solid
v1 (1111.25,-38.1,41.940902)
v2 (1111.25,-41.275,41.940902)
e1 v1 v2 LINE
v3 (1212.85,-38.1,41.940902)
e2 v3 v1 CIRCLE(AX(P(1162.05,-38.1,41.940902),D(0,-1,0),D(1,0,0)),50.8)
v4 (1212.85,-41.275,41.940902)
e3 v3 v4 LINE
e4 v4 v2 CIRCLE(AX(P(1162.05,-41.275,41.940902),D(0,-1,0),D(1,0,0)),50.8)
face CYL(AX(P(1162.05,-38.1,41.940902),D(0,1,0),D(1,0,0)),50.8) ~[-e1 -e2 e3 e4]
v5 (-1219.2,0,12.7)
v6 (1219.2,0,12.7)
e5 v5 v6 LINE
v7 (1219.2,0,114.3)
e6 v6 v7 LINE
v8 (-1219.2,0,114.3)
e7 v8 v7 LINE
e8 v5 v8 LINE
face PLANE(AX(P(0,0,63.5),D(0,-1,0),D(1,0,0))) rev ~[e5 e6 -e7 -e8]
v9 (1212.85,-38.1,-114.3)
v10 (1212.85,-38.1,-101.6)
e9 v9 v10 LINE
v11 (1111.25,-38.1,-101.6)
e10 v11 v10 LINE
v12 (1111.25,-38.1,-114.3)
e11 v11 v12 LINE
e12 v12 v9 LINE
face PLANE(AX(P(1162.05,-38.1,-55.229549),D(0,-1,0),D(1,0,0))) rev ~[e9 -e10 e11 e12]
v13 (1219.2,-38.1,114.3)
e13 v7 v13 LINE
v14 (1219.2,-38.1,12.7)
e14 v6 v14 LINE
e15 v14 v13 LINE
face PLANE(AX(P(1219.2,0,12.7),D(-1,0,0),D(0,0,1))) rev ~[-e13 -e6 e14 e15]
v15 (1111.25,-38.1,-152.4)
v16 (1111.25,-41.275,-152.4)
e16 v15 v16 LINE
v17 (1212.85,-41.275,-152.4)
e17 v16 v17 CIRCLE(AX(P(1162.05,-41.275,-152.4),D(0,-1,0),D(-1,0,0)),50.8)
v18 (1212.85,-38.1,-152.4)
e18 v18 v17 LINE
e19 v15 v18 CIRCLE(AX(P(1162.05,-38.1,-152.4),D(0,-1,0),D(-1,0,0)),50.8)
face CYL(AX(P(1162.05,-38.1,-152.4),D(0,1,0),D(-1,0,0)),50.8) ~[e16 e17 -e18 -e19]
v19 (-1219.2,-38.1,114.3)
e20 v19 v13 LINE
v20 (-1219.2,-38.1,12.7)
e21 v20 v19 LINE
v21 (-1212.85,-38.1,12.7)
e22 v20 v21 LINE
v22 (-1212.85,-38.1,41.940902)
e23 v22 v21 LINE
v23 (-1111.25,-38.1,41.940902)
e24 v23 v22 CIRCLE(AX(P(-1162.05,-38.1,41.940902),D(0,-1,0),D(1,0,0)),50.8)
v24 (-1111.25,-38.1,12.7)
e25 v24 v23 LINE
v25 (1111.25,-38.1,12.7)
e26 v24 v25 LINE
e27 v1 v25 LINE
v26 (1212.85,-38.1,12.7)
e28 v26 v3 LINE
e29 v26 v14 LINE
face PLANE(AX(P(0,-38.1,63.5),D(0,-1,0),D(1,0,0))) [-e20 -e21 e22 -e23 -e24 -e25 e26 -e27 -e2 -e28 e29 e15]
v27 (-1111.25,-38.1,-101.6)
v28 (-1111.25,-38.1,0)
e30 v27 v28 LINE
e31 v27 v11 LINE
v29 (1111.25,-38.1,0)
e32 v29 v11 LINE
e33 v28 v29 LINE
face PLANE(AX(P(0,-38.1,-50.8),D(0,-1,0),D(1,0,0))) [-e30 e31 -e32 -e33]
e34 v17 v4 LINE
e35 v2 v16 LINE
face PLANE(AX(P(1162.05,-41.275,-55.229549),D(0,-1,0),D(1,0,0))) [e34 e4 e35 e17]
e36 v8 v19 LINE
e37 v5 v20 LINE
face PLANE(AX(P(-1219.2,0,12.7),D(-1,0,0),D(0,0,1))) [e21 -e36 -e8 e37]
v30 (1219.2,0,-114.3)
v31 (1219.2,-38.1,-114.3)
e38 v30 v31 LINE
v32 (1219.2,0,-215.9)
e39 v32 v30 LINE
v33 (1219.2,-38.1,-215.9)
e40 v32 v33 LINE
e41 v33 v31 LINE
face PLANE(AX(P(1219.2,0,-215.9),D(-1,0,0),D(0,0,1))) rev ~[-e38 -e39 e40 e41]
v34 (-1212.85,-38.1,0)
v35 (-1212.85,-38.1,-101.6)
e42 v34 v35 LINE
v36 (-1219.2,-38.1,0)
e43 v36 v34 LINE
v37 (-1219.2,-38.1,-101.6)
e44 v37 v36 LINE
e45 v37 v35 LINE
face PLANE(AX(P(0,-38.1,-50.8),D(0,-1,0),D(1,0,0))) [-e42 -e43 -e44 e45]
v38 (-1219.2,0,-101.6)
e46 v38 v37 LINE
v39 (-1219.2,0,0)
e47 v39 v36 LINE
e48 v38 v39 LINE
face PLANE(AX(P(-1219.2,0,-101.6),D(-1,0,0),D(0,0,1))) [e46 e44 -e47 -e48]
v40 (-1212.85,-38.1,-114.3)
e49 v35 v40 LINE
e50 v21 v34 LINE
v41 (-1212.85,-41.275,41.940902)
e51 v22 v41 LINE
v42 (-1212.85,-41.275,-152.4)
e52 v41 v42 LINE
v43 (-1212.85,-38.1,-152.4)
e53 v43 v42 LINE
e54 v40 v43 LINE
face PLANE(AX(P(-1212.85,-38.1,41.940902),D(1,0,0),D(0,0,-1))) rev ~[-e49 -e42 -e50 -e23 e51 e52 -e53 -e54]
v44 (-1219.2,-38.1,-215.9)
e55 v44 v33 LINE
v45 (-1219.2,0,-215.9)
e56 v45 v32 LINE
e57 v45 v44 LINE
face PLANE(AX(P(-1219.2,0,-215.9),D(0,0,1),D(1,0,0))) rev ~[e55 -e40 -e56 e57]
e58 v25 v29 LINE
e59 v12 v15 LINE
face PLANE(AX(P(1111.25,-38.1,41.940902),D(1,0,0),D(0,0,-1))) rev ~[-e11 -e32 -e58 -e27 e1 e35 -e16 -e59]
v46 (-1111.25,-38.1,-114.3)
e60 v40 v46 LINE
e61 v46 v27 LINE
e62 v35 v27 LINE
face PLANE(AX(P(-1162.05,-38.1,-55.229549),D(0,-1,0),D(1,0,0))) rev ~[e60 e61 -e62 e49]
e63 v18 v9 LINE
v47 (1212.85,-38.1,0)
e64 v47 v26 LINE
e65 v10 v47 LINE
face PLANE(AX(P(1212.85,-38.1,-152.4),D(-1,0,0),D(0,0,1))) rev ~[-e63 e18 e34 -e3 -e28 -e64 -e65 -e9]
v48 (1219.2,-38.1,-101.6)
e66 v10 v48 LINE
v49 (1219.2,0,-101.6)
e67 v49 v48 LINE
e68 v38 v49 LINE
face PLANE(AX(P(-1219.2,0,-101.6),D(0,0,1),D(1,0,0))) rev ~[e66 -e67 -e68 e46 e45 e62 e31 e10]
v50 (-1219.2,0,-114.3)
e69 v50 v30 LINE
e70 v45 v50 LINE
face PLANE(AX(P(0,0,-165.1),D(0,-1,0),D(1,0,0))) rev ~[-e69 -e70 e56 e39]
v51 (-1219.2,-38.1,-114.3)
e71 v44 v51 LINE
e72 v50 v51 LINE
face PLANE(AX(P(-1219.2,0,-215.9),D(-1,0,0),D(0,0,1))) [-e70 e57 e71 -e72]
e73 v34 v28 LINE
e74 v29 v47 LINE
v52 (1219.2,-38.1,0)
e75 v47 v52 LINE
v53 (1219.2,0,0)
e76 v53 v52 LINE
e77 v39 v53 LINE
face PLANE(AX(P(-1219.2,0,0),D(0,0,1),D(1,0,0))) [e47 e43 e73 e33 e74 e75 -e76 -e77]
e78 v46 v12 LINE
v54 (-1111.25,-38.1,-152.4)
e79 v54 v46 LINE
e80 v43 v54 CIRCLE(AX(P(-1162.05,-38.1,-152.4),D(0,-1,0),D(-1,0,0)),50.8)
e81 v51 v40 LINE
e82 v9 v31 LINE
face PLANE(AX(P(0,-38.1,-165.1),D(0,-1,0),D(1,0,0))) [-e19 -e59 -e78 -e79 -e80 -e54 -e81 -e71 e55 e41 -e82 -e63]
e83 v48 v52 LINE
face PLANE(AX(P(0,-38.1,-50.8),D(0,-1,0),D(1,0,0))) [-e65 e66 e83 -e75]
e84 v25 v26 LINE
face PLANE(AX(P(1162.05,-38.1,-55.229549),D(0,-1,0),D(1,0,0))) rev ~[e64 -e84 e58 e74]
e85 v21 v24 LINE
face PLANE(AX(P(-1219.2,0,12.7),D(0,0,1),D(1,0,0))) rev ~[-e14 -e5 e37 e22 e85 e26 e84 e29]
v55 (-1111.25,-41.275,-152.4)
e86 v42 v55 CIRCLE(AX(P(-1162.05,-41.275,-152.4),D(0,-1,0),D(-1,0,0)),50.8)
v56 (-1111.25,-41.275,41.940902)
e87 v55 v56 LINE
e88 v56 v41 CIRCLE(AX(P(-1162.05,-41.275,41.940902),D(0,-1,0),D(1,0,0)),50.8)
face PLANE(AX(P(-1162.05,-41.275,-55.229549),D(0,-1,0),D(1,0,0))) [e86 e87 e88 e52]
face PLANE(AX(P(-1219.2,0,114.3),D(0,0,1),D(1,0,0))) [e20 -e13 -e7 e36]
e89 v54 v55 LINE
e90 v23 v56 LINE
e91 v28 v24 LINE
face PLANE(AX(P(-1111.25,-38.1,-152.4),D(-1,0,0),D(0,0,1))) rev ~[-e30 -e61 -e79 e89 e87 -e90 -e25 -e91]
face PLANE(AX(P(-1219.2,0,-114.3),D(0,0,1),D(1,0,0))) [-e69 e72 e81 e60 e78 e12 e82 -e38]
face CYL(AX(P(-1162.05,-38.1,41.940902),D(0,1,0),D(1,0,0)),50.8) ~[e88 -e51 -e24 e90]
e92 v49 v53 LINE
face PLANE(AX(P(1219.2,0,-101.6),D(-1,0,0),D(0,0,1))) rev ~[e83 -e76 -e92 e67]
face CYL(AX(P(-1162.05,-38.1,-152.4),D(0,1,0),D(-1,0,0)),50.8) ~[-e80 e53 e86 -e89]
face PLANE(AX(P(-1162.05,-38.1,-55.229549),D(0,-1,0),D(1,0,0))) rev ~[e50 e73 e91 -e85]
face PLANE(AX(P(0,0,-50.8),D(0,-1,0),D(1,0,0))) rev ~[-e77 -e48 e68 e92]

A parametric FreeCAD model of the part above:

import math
import FreeCAD as App
import Part
import Sketcher
from FreeCAD import Vector
Q = App.Units.Quantity

doc = App.newDocument("Part")
body = doc.addObject("PartDesign::Body", "Body")

# Sketch on XZ plane
sketch1 = body.newObject("Sketcher::SketchObject", "Sketch")
sketch1.AttachmentSupport = (doc.getObject("XZ_Plane"), [""])
sketch1.MapMode = "FlatFace"
sketch1.addGeometry([
    Part.LineSegment(Vector(-1219, 114, 0), Vector(-1219, 13, 0)),
    Part.LineSegment(Vector(-1219, 13, 0), Vector(1219, 13, 0)),
    Part.LineSegment(Vector(1219, 13, 0), Vector(1219, 114, 0)),
    Part.LineSegment(Vector(1219, 114, 0), Vector(-1219, 114, 0)),
], False)
sketch1.addConstraint([
    Sketcher.Constraint("Coincident", 0, 2, 1, 1),
    Sketcher.Constraint("Coincident", 1, 2, 2, 1),
    Sketcher.Constraint("Coincident", 2, 2, 3, 1),
    Sketcher.Constraint("Coincident", 3, 2, 0, 1),
    Sketcher.Constraint("Vertical", 0),
    Sketcher.Constraint("Horizontal", 1),
    Sketcher.Constraint("Vertical", 2),
    Sketcher.Constraint("Horizontal", 3),
    Sketcher.Constraint("DistanceX", 1, 1, 1, 2, Q("96 in")),
    Sketcher.Constraint("DistanceY", 0, 2, 0, 1, Q("4 in")),
    Sketcher.Constraint("DistanceX", 0, 2, -1, 1, Q("48 in")),
    Sketcher.Constraint("DistanceY", -1, 1, 0, 2, Q("0.5 in")),
])
pad1 = body.newObject("PartDesign::Pad", "Pad")
pad1.Profile = sketch1
pad1.Length = Q("1.5 in")
body2 = doc.addObject("PartDesign::Body", "Body001")

# Sketch on XZ plane
sketch2 = body2.newObject("Sketcher::SketchObject", "Sketch001")
sketch2.AttachmentSupport = (doc.getObject("XZ_Plane001"), [""])
sketch2.MapMode = "FlatFace"
sketch2.addGeometry([
    Part.LineSegment(Vector(-1219, 0, 0), Vector(-1219, -102, 0)),
    Part.LineSegment(Vector(-1219, -102, 0), Vector(1219, -102, 0)),
    Part.LineSegment(Vector(1219, -102, 0), Vector(1219, 0, 0)),
    Part.LineSegment(Vector(1219, 0, 0), Vector(-1219, 0, 0)),
], False)
sketch2.addConstraint([
    Sketcher.Constraint("Coincident", 0, 2, 1, 1),
    Sketcher.Constraint("Coincident", 1, 2, 2, 1),
    Sketcher.Constraint("Coincident", 2, 2, 3, 1),
    Sketcher.Constraint("Coincident", 3, 2, 0, 1),
    Sketcher.Constraint("Vertical", 0),
    Sketcher.Constraint("Horizontal", 1),
    Sketcher.Constraint("Vertical", 2),
    Sketcher.Constraint("Horizontal", 3),
    Sketcher.Constraint("Symmetric", 2, 2, 3, 2, -1, 1),
    Sketcher.Constraint("DistanceX", 1, 1, 1, 2, Q("96 in")),
    Sketcher.Constraint("DistanceY", 0, 2, 0, 1, Q("4 in")),
])
pad2 = body2.newObject("PartDesign::Pad", "Pad001")
pad2.Profile = sketch2
pad2.Length = Q("1.5 in")
body3 = doc.addObject("PartDesign::Body", "Body002")

# Sketch on XZ plane
sketch3 = body3.newObject("Sketcher::SketchObject", "Sketch002")
sketch3.AttachmentSupport = (doc.getObject("XZ_Plane002"), [""])
sketch3.MapMode = "FlatFace"
sketch3.addGeometry([
    Part.LineSegment(Vector(-1219, -114, 0), Vector(-1219, -216, 0)),
    Part.LineSegment(Vector(-1219, -216, 0), Vector(1219, -216, 0)),
    Part.LineSegment(Vector(1219, -216, 0), Vector(1219, -114, 0)),
    Part.LineSegment(Vector(1219, -114, 0), Vector(-1219, -114, 0)),
], False)
sketch3.addConstraint([
    Sketcher.Constraint("Coincident", 0, 2, 1, 1),
    Sketcher.Constraint("Coincident", 1, 2, 2, 1),
    Sketcher.Constraint("Coincident", 2, 2, 3, 1),
    Sketcher.Constraint("Coincident", 3, 2, 0, 1),
    Sketcher.Constraint("Vertical", 0),
    Sketcher.Constraint("Horizontal", 1),
    Sketcher.Constraint("Vertical", 2),
    Sketcher.Constraint("Horizontal", 3),
    Sketcher.Constraint("DistanceX", 1, 1, 1, 2, Q("96 in")),
    Sketcher.Constraint("DistanceY", 0, 2, 0, 1, Q("4 in")),
    Sketcher.Constraint("DistanceX", 0, 2, -1, 1, Q("48 in")),
    Sketcher.Constraint("DistanceY", 0, 2, -1, 1, Q("8.5 in")),
])
pad3 = body3.newObject("PartDesign::Pad", "Pad002")
pad3.Profile = sketch3
pad3.Length = Q("1.5 in")
body.AllowCompound = True
doc.recompute()

boolean = body.newObject("PartDesign::Boolean", "Boolean")
boolean.Type = "Fuse"
boolean.addObjects([body2])
doc.recompute()

boolean2 = body.newObject("PartDesign::Boolean", "Boolean001")
boolean2.Type = "Fuse"
boolean2.addObjects([body3])

# Sketch on XZ plane
sketch4 = body.newObject("Sketcher::SketchObject", "Sketch003")
sketch4.AttachmentSupport = (doc.getObject("XZ_Plane"), [""])
sketch4.MapMode = "FlatFace"
sketch4.AttachmentOffset = App.Placement(Vector(0, 0, 1.5 * 25.4), App.Rotation())
sketch4.addGeometry([
    Part.LineSegment(Vector(-1213, 42, 0), Vector(-1213, -152, 0)),  # 0
    Part.ArcOfCircle(Part.Circle(Vector(-1162, -152, 0), Vector(0, 0, 1), 51), math.radians(180), math.radians(360)),  # 1
    Part.LineSegment(Vector(-1111, -152, 0), Vector(-1111, 42, 0)),  # 2
    Part.ArcOfCircle(Part.Circle(Vector(-1162, 42, 0), Vector(0, 0, 1), 51), math.radians(0), math.radians(180)),  # 3
    Part.LineSegment(Vector(1111, 42, 0), Vector(1111, -152, 0)),  # 4
    Part.ArcOfCircle(Part.Circle(Vector(1162, -152, 0), Vector(0, 0, 1), 51), math.radians(180), math.radians(360)),  # 5
    Part.LineSegment(Vector(1213, -152, 0), Vector(1213, 42, 0)),  # 6
    Part.ArcOfCircle(Part.Circle(Vector(1162, 42, 0), Vector(0, 0, 1), 51), math.radians(0), math.radians(180)),  # 7
], False)
sketch4.addConstraint([
    Sketcher.Constraint("Tangent", 0, 2, 1, 1),
    Sketcher.Constraint("Tangent", 1, 2, 2, 1),
    Sketcher.Constraint("Tangent", 2, 2, 3, 1),
    Sketcher.Constraint("Tangent", 3, 2, 0, 1),
    Sketcher.Constraint("Tangent", 4, 2, 5, 1),
    Sketcher.Constraint("Tangent", 5, 2, 6, 1),
    Sketcher.Constraint("Tangent", 6, 2, 7, 1),
    Sketcher.Constraint("Tangent", 7, 2, 4, 1),
    Sketcher.Constraint("Vertical", 0),
    Sketcher.Constraint("Vertical", 2),
    Sketcher.Constraint("Vertical", 4),
    Sketcher.Constraint("Vertical", 6),
    Sketcher.Constraint("Equal", 3, 5),
    Sketcher.Constraint("Symmetric", 1, 3, 5, 3, -2),
    Sketcher.Constraint("Horizontal", 3, 3, 7, 3),
    Sketcher.Constraint("Radius", 1, Q("2 in")),
    Sketcher.Constraint("DistanceY", 1, 3, -1, 1, Q("6 in")),
    Sketcher.Constraint("DistanceX", 1, 3, 5, 3, Q("91.5 in")),
    Sketcher.Constraint("DistanceY", 0, 2, 0, 1, Q("194.340902 mm")),
])
pad4 = body.newObject("PartDesign::Pad", "Pad003")
pad4.Profile = sketch4
pad4.Length = Q("0.125 in")

doc.recompute()
